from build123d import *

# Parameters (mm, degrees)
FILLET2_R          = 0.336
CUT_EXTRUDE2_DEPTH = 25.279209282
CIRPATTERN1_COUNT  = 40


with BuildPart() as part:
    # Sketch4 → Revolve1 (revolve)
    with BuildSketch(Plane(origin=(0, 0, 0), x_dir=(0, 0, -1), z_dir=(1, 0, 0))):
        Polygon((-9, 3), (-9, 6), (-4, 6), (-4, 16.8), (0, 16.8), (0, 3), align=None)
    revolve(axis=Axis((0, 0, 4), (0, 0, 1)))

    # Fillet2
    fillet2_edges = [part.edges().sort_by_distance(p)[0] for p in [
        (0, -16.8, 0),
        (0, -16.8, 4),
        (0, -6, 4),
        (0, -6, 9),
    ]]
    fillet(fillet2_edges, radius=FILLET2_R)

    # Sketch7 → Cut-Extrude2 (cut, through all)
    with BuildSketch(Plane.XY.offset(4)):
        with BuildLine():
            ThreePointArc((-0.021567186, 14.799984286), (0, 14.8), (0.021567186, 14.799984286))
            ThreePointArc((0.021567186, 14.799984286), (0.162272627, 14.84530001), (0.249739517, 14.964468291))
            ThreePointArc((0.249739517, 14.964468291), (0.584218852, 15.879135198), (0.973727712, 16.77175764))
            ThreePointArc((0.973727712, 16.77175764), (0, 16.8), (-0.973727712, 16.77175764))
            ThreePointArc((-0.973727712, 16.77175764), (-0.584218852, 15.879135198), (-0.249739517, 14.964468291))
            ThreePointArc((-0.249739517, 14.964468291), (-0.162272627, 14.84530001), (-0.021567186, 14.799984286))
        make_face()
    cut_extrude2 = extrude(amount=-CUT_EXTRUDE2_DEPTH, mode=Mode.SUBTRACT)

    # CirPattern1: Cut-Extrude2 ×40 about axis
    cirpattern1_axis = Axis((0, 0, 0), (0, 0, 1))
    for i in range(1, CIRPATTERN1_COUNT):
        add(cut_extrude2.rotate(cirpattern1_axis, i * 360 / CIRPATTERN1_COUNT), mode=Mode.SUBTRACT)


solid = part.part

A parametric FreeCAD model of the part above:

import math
import FreeCAD as App
import Part
import Sketcher

V = App.Vector
Q = App.Units.Quantity


def edges_at(feature, points):
    """Names of the edges that pass closest to the given points."""
    edges = feature.Shape.Edges
    near = lambda p: min(range(len(edges)), key=lambda i: edges[i].distToShape(Part.Vertex(*p))[0])
    return sorted({f"Edge{near(p) + 1}" for p in points})


def add_polygon(sketch, points):
    """Adds a closed chain of lines whose ends are joined by coincident constraints."""
    first, n = sketch.GeometryCount, len(points)
    for a, b in zip(points, points[1:] + points[:1]):
        sketch.addGeometry(Part.LineSegment(App.Vector(*a, 0), App.Vector(*b, 0)), False)
    for i in range(n):
        sketch.addConstraint(Sketcher.Constraint("Coincident", first + i, 2, first + (i + 1) % n, 1))

doc = App.newDocument("Part")
params = doc.addObject("Spreadsheet::Sheet", "Params")
for row, (alias, value) in enumerate([
    ("sketch1_width", "3 mm"),
    ("sketch1_height", "9 mm"),
    ("sketch1_height2", "4 mm"),
    ("sketch1_width2", "13.8 mm"),
    ("revolution_angle", "360 deg"),
    ("fillet_radius", "0.336 mm"),
    ("sketch2_radius", "16 mm"),
    ("sketch2_radius2", "16 mm"),
    ("sketch2_radius3", "16.8 mm"),
], start=1):
    params.set(f"A{row}", alias)
    params.set(f"B{row}", "=" + value)
    params.setAlias(f"B{row}", alias)

body = doc.addObject("PartDesign::Body", "Body")

# Sketch on YZ plane
sketch1 = doc.addObject("Sketcher::SketchObject", "Sketch")
body.addObject(sketch1)
sketch1.AttachmentSupport = (doc.YZ_Plane, [""])
sketch1.MapMode = "FlatFace"
add_polygon(sketch1, [(6, 9), (3, 9), (3, 0), (16.8, 0), (16.8, 4), (6, 4)])  # lines 0-5
sketch1.addConstraint([
    Sketcher.Constraint("Horizontal", 0),
    Sketcher.Constraint("Vertical", 1),
    Sketcher.Constraint("Horizontal", 2),
    Sketcher.Constraint("Vertical", 3),
    Sketcher.Constraint("Horizontal", 4),
    Sketcher.Constraint("Vertical", 5),
    Sketcher.Constraint("PointOnObject", 1, 2, -1),
    Sketcher.Constraint("DistanceX", 0, 2, 0, 1, Q("3 mm")),
    Sketcher.Constraint("DistanceY", 1, 2, 1, 1, Q("9 mm")),
    Sketcher.Constraint("DistanceY", 3, 1, 3, 2, Q("4 mm")),
    Sketcher.Constraint("DistanceX", 2, 1, 2, 2, Q("13.8 mm")),
    Sketcher.Constraint("DistanceX", -1, 1, 0, 2, Q("3 mm")),
])
sketch1.setExpression("Constraints[13]", "Params.sketch1_width")
sketch1.setExpression("Constraints[14]", "Params.sketch1_height")
sketch1.setExpression("Constraints[15]", "Params.sketch1_height2")
sketch1.setExpression("Constraints[16]", "Params.sketch1_width2")
revolution = doc.addObject("PartDesign::Revolution", "Revolution")
body.addObject(revolution)
revolution.Profile = sketch1
revolution.ReferenceAxis = (sketch1, ["V_Axis"])
revolution.setExpression("Angle", "Params.revolution_angle")
doc.recompute()

fillet = doc.addObject("PartDesign::Fillet", "Fillet")
body.addObject(fillet)
fillet.Base = (revolution, edges_at(revolution, [
    (0, -16.8, 0),
    (0, -16.8, 4),
    (0, -6, 4),
    (0, -6, 9),
]))
fillet.setExpression("Radius", "Params.fillet_radius")

# Sketch on XY plane
sketch2 = doc.addObject("Sketcher::SketchObject", "Sketch001")
body.addObject(sketch2)
sketch2.AttachmentSupport = (doc.XY_Plane, [""])
sketch2.MapMode = "FlatFace"
sketch2.AttachmentOffset = App.Placement(V(0, 0, 4), App.Rotation())
sketch2.addGeometry([
    Part.ArcOfCircle(Part.Circle(V(0, -0.000298, 0), V(0, 0, 1), 14.800298), math.radians(89.916508), math.radians(90.083492)),  # 0
    Part.ArcOfCircle(Part.Circle(V(0.021917, 15.040002, 0), V(0, 0, 1), 0.240017), math.radians(-90.083494), math.radians(-18.342632)),  # 1
    Part.ArcOfCircle(Part.Circle(V(15.436805, 9.929287, 0), V(0, 0, 1), 16), math.radians(154.681206), math.radians(161.657367)),  # 2
    Part.ArcOfCircle(Part.Circle(V(0, 0, 0), V(0, 0, 1), 16.8), math.radians(86.677275), math.radians(93.322725)),  # 3
    Part.ArcOfCircle(Part.Circle(V(-15.436805, 9.929287, 0), V(0, 0, 1), 16), math.radians(18.342633), math.radians(25.318794)),  # 4
    Part.ArcOfCircle(Part.Circle(V(-0.021917, 15.040002, 0), V(0, 0, 1), 0.240017), math.radians(-161.657368), math.radians(-89.916506)),  # 5
], False)
sketch2.addConstraint([
    Sketcher.Constraint("Coincident", 0, 1, 1, 1),
    Sketcher.Constraint("Coincident", 1, 2, 2, 2),
    Sketcher.Constraint("Coincident", 2, 1, 3, 1),
    Sketcher.Constraint("Coincident", 3, 2, 4, 2),
    Sketcher.Constraint("Coincident", 4, 1, 5, 1),
    Sketcher.Constraint("Coincident", 5, 2, 0, 2),
    Sketcher.Constraint("Coincident", 3, 3, -1, 1),
    Sketcher.Constraint("PointOnObject", 0, 3, -2),
    Sketcher.Constraint("Radius", 2, Q("16 mm")),
    Sketcher.Constraint("Radius", 4, Q("16 mm")),
    Sketcher.Constraint("Radius", 3, Q("16.8 mm")),
    Sketcher.Constraint("DistanceY", -1, 1, 1, 3, Q("15.040002 mm")),
    Sketcher.Constraint("DistanceY", -1, 1, 5, 3, Q("15.040002 mm")),
    Sketcher.Constraint("Radius", 0, Q("14.800298 mm")),
    Sketcher.Constraint("Radius", 1, Q("0.240017 mm")),
    Sketcher.Constraint("DistanceX", -1, 1, 1, 2, Q("0.24974 mm")),
    Sketcher.Constraint("DistanceY", -1, 1, 1, 2, Q("14.964468 mm")),
    Sketcher.Constraint("DistanceX", 4, 1, -1, 1, Q("0.24974 mm")),
    Sketcher.Constraint("DistanceY", -1, 1, 4, 1, Q("14.964468 mm")),
    Sketcher.Constraint("DistanceX", 1, 3, 2, 3, Q("15.414888 mm")),
    Sketcher.Constraint("DistanceX", 4, 3, 1, 3, Q("15.458722 mm")),
    Sketcher.Constraint("DistanceX", 0, 1, 1, 3, Q("0.00035 mm")),
    Sketcher.Constraint("DistanceX", 5, 3, 5, 2, Q("0.00035 mm")),
])
sketch2.setExpression("Constraints[8]", "Params.sketch2_radius")
sketch2.setExpression("Constraints[9]", "Params.sketch2_radius2")
sketch2.setExpression("Constraints[10]", "Params.sketch2_radius3")
pocket1 = doc.addObject("PartDesign::Pocket", "Pocket")
body.addObject(pocket1)
pocket1.Profile = sketch2
pocket1.Type = "ThroughAll"
doc.recompute()

polarpattern = doc.addObject("PartDesign::PolarPattern", "PolarPattern")
body.addObject(polarpattern)
polarpattern.Originals = [pocket1]
polarpattern.Axis = (doc.Z_Axis, [""])
polarpattern.Angle = 360
polarpattern.Occurrences = 40
body.Tip = polarpattern

doc.recompute()
